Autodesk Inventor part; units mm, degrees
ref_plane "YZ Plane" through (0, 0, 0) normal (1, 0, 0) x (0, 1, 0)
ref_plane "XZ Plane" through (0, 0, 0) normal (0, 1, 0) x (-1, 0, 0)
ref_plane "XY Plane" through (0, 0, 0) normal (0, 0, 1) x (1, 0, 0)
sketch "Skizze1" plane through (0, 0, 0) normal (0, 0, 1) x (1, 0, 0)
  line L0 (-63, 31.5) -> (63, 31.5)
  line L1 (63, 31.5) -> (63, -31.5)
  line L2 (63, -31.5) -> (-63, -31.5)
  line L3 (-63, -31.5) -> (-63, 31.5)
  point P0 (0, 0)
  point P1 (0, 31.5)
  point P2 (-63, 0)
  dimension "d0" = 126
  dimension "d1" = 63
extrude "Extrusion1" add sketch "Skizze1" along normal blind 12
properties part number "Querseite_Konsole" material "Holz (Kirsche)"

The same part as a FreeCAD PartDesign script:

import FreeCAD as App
import Part
import Sketcher
from FreeCAD import Vector
Q = App.Units.Quantity

doc = App.newDocument("Part")
body = doc.addObject("PartDesign::Body", "Body")

sketch1 = body.newObject("Sketcher::SketchObject", "Sketch")
sketch1.AttachmentSupport = (doc.getObject("XY_Plane"), [""])
sketch1.MapMode = "FlatFace"
sketch1.addGeometry([
    Part.LineSegment(Vector(63, 32, 0), Vector(-63, 32, 0)),
    Part.LineSegment(Vector(-63, 32, 0), Vector(-63, -32, 0)),
    Part.LineSegment(Vector(-63, -32, 0), Vector(63, -32, 0)),
    Part.LineSegment(Vector(63, -32, 0), Vector(63, 32, 0)),
], False)
sketch1.addConstraint([
    Sketcher.Constraint("Coincident", 0, 2, 1, 1),
    Sketcher.Constraint("Coincident", 1, 2, 2, 1),
    Sketcher.Constraint("Coincident", 2, 2, 3, 1),
    Sketcher.Constraint("Coincident", 3, 2, 0, 1),
    Sketcher.Constraint("Horizontal", 0),
    Sketcher.Constraint("Vertical", 1),
    Sketcher.Constraint("Horizontal", 2),
    Sketcher.Constraint("Vertical", 3),
    Sketcher.Constraint("Symmetric", 0, 2, 2, 2, -1, 1),
    Sketcher.Constraint("DistanceX", 0, 2, 0, 1, Q("126 mm")),
    Sketcher.Constraint("DistanceY", 1, 2, 1, 1, Q("63 mm")),
])
pad1 = body.newObject("PartDesign::Pad", "Pad")
pad1.Profile = sketch1
pad1.Length = 12

doc.recompute()
